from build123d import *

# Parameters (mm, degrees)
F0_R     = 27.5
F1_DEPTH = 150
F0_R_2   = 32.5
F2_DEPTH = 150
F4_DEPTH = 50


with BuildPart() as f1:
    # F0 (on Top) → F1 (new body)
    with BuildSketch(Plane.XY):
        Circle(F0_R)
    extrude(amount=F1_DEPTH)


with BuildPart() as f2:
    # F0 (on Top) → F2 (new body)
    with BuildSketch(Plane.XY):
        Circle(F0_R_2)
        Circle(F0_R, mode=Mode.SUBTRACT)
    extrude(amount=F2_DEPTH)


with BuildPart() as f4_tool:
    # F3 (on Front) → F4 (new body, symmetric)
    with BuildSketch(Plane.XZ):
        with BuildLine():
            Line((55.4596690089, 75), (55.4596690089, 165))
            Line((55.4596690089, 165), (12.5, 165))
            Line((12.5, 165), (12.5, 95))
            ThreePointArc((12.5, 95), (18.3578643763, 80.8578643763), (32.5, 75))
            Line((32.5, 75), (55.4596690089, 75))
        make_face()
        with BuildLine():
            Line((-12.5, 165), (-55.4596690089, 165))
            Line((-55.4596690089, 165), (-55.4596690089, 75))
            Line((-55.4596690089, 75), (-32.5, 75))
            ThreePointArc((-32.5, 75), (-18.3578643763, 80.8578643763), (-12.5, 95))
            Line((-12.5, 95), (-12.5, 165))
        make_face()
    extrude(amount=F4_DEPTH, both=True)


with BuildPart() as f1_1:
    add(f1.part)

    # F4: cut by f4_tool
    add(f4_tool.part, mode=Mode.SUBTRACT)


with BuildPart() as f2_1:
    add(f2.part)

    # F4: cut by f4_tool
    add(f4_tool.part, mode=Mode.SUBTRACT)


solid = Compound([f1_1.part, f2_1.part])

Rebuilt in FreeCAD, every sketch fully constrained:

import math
import FreeCAD as App
import Part
import Sketcher

V = App.Vector
Q = App.Units.Quantity

doc = App.newDocument("Part")
params = doc.addObject("Spreadsheet::Sheet", "Params")
for row, (alias, value) in enumerate([
    ("sketch1_diameter", "55 mm"),
    ("pad1_length", "150 mm"),
    ("sketch2_diameter", "65 mm"),
    ("sketch2_diameter2", "55 mm"),
    ("pad2_length", "150 mm"),
    ("sketch3_radius", "20 mm"),
    ("sketch3_height", "90 mm"),
    ("pad3_length", "100 mm"),
], start=1):
    params.set(f"A{row}", alias)
    params.set(f"B{row}", "=" + value)
    params.setAlias(f"B{row}", alias)

body = doc.addObject("PartDesign::Body", "Body")

# Sketch on XY plane
sketch1 = body.newObject("Sketcher::SketchObject", "Sketch")
sketch1.AttachmentSupport = (doc.getObject("XY_Plane"), [""])
sketch1.MapMode = "FlatFace"
sketch1.addGeometry(Part.Circle(V(0, 0, 0), V(0, 0, 1), 28), False)
sketch1.addConstraint([
    Sketcher.Constraint("Coincident", 0, 3, -1, 1),
    Sketcher.Constraint("Diameter", 0, Q("55 mm")),
])
sketch1.setExpression("Constraints[1]", "Params.sketch1_diameter")
pad1 = body.newObject("PartDesign::Pad", "Pad")
pad1.Profile = sketch1
pad1.setExpression("Length", "Params.pad1_length")
body2 = doc.addObject("PartDesign::Body", "Body001")

# Sketch on XY plane
sketch2 = body2.newObject("Sketcher::SketchObject", "Sketch001")
sketch2.AttachmentSupport = (doc.getObject("XY_Plane001"), [""])
sketch2.MapMode = "FlatFace"
sketch2.addGeometry([
    Part.Circle(V(0, 0, 0), V(0, 0, 1), 32),
    Part.Circle(V(0, 0, 0), V(0, 0, 1), 28),
], False)
sketch2.addConstraint([
    Sketcher.Constraint("Coincident", 0, 3, -1, 1),
    Sketcher.Constraint("Coincident", 1, 3, -1, 1),
    Sketcher.Constraint("Diameter", 0, Q("65 mm")),
    Sketcher.Constraint("Diameter", 1, Q("55 mm")),
])
sketch2.setExpression("Constraints[2]", "Params.sketch2_diameter")
sketch2.setExpression("Constraints[3]", "Params.sketch2_diameter2")
pad2 = body2.newObject("PartDesign::Pad", "Pad001")
pad2.Profile = sketch2
pad2.setExpression("Length", "Params.pad2_length")
body3 = doc.addObject("PartDesign::Body", "Body002")
body3.AllowCompound = True

# Sketch on XZ plane
sketch3 = body3.newObject("Sketcher::SketchObject", "Sketch002")
sketch3.AttachmentSupport = (doc.getObject("XZ_Plane002"), [""])
sketch3.MapMode = "FlatFace"
sketch3.addGeometry([
    Part.LineSegment(V(55, 75, 0), V(55, 165, 0)),  # 0
    Part.LineSegment(V(55, 165, 0), V(12, 165, 0)),  # 1
    Part.LineSegment(V(12, 165, 0), V(12, 95, 0)),  # 2
    Part.ArcOfCircle(Part.Circle(V(32, 95, 0), V(0, 0, 1), 20), math.radians(180), math.radians(270)),  # 3
    Part.LineSegment(V(32, 75, 0), V(55, 75, 0)),  # 4
    Part.LineSegment(V(-12, 165, 0), V(-55, 165, 0)),  # 5
    Part.LineSegment(V(-55, 165, 0), V(-55, 75, 0)),  # 6
    Part.LineSegment(V(-55, 75, 0), V(-32, 75, 0)),  # 7
    Part.ArcOfCircle(Part.Circle(V(-32, 95, 0), V(0, 0, 1), 20), math.radians(-90), math.radians(0)),  # 8
    Part.LineSegment(V(-12, 95, 0), V(-12, 165, 0)),  # 9
], False)
sketch3.addConstraint([
    Sketcher.Constraint("Coincident", 0, 2, 1, 1),
    Sketcher.Constraint("Coincident", 1, 2, 2, 1),
    Sketcher.Constraint("Tangent", 2, 2, 3, 1),
    Sketcher.Constraint("Tangent", 3, 2, 4, 1),
    Sketcher.Constraint("Coincident", 4, 2, 0, 1),
    Sketcher.Constraint("Coincident", 5, 2, 6, 1),
    Sketcher.Constraint("Coincident", 6, 2, 7, 1),
    Sketcher.Constraint("Tangent", 7, 2, 8, 1),
    Sketcher.Constraint("Tangent", 8, 2, 9, 1),
    Sketcher.Constraint("Coincident", 9, 2, 5, 1),
    Sketcher.Constraint("Vertical", 0),
    Sketcher.Constraint("Horizontal", 1),
    Sketcher.Constraint("Vertical", 2),
    Sketcher.Constraint("Horizontal", 4),
    Sketcher.Constraint("Horizontal", 5),
    Sketcher.Constraint("Vertical", 6),
    Sketcher.Constraint("Horizontal", 7),
    Sketcher.Constraint("Vertical", 9),
    Sketcher.Constraint("Equal", 3, 8),
    Sketcher.Constraint("Symmetric", 3, 3, 8, 3, -2),
    Sketcher.Constraint("Symmetric", 0, 2, 5, 2, -2),
    Sketcher.Constraint("Radius", 3, Q("20 mm")),
    Sketcher.Constraint("DistanceY", 0, 1, 0, 2, Q("90 mm")),
    Sketcher.Constraint("DistanceY", -1, 1, 3, 3, Q("95 mm")),
    Sketcher.Constraint("DistanceX", 8, 3, 3, 3, Q("65 mm")),
    Sketcher.Constraint("DistanceX", 1, 2, 1, 1, Q("42.959669 mm")),
])
sketch3.setExpression("Constraints[21]", "Params.sketch3_radius")
sketch3.setExpression("Constraints[22]", "Params.sketch3_height")
pad3 = body3.newObject("PartDesign::Pad", "Pad002")
pad3.Profile = sketch3
pad3.setExpression("Length", "Params.pad3_length")
pad3.Midplane = True
doc.recompute()

body4 = doc.addObject("PartDesign::Body", "Body003")
body4.BaseFeature = body3
boolean = body.newObject("PartDesign::Boolean", "Boolean")
boolean.Type = "Cut"
boolean.addObjects([body4])
doc.recompute()

boolean2 = body2.newObject("PartDesign::Boolean", "Boolean001")
boolean2.Type = "Cut"
boolean2.addObjects([body3])

doc.recompute()
